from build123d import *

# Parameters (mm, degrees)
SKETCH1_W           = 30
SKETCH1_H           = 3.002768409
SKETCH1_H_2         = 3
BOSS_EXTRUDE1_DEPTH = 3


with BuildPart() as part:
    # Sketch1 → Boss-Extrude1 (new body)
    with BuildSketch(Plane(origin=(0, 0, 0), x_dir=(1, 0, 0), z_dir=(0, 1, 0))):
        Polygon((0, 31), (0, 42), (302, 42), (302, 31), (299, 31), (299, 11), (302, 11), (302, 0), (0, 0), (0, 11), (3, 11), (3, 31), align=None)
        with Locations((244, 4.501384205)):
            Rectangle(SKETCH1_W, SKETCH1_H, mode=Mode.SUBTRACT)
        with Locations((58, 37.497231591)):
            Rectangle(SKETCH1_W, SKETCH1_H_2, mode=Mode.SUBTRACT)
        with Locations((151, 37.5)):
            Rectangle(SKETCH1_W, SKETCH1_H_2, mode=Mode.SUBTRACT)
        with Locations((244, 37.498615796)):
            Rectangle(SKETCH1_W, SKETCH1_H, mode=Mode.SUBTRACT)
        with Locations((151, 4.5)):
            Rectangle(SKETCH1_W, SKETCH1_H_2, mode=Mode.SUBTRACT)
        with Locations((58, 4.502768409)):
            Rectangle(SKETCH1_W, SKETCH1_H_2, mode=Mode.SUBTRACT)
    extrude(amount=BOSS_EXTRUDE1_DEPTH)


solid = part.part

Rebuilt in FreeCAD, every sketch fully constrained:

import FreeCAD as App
import Part
import Sketcher

doc = App.newDocument("Part")
body = doc.addObject("PartDesign::Body", "Body")

# Sketch on XZ plane
sketch1 = body.newObject("Sketcher::SketchObject", "Sketch")
sketch1.AttachmentSupport = (doc.getObject("XZ_Plane"), [""])
sketch1.MapMode = "FlatFace"
sketch1.addGeometry([
    Part.LineSegment(App.Vector(0, -42, 0), App.Vector(0, -31, 0)),  # 0
    Part.LineSegment(App.Vector(0, -31, 0), App.Vector(3, -31, 0)),  # 1
    Part.LineSegment(App.Vector(3, -31, 0), App.Vector(3, -11, 0)),  # 2
    Part.LineSegment(App.Vector(3, -11, 0), App.Vector(0, -11, 0)),  # 3
    Part.LineSegment(App.Vector(0, -11, 0), App.Vector(0, 0, 0)),  # 4
    Part.LineSegment(App.Vector(0, 0, 0), App.Vector(302, 0, 0)),  # 5
    Part.LineSegment(App.Vector(302, 0, 0), App.Vector(302, -11, 0)),  # 6
    Part.LineSegment(App.Vector(302, -11, 0), App.Vector(299, -11, 0)),  # 7
    Part.LineSegment(App.Vector(299, -11, 0), App.Vector(299, -31, 0)),  # 8
    Part.LineSegment(App.Vector(299, -31, 0), App.Vector(302, -31, 0)),  # 9
    Part.LineSegment(App.Vector(302, -31, 0), App.Vector(302, -42, 0)),  # 10
    Part.LineSegment(App.Vector(302, -42, 0), App.Vector(0, -42, 0)),  # 11
    Part.LineSegment(App.Vector(229, -3, 0), App.Vector(229, -6, 0)),  # 12
    Part.LineSegment(App.Vector(229, -6, 0), App.Vector(259, -6, 0)),  # 13
    Part.LineSegment(App.Vector(259, -6, 0), App.Vector(259, -3, 0)),  # 14
    Part.LineSegment(App.Vector(259, -3, 0), App.Vector(229, -3, 0)),  # 15
    Part.LineSegment(App.Vector(136, -3, 0), App.Vector(136, -6, 0)),  # 16
    Part.LineSegment(App.Vector(136, -6, 0), App.Vector(166, -6, 0)),  # 17
    Part.LineSegment(App.Vector(166, -6, 0), App.Vector(166, -3, 0)),  # 18
    Part.LineSegment(App.Vector(166, -3, 0), App.Vector(136, -3, 0)),  # 19
    Part.LineSegment(App.Vector(43, -3, 0), App.Vector(43, -6, 0)),  # 20
    Part.LineSegment(App.Vector(43, -6, 0), App.Vector(73, -6, 0)),  # 21
    Part.LineSegment(App.Vector(73, -6, 0), App.Vector(73, -3, 0)),  # 22
    Part.LineSegment(App.Vector(73, -3, 0), App.Vector(43, -3, 0)),  # 23
    Part.LineSegment(App.Vector(229, -36, 0), App.Vector(229, -39, 0)),  # 24
    Part.LineSegment(App.Vector(229, -39, 0), App.Vector(259, -39, 0)),  # 25
    Part.LineSegment(App.Vector(259, -39, 0), App.Vector(259, -36, 0)),  # 26
    Part.LineSegment(App.Vector(259, -36, 0), App.Vector(229, -36, 0)),  # 27
    Part.LineSegment(App.Vector(136, -36, 0), App.Vector(136, -39, 0)),  # 28
    Part.LineSegment(App.Vector(136, -39, 0), App.Vector(166, -39, 0)),  # 29
    Part.LineSegment(App.Vector(166, -39, 0), App.Vector(166, -36, 0)),  # 30
    Part.LineSegment(App.Vector(166, -36, 0), App.Vector(136, -36, 0)),  # 31
    Part.LineSegment(App.Vector(43, -36, 0), App.Vector(43, -39, 0)),  # 32
    Part.LineSegment(App.Vector(43, -39, 0), App.Vector(73, -39, 0)),  # 33
    Part.LineSegment(App.Vector(73, -39, 0), App.Vector(73, -36, 0)),  # 34
    Part.LineSegment(App.Vector(73, -36, 0), App.Vector(43, -36, 0)),  # 35
], False)
sketch1.addConstraint([
    Sketcher.Constraint("Coincident", 0, 2, 1, 1),
    Sketcher.Constraint("Coincident", 1, 2, 2, 1),
    Sketcher.Constraint("Coincident", 2, 2, 3, 1),
    Sketcher.Constraint("Coincident", 3, 2, 4, 1),
    Sketcher.Constraint("Coincident", 4, 2, 5, 1),
    Sketcher.Constraint("Coincident", 5, 2, 6, 1),
    Sketcher.Constraint("Coincident", 6, 2, 7, 1),
    Sketcher.Constraint("Coincident", 7, 2, 8, 1),
    Sketcher.Constraint("Coincident", 8, 2, 9, 1),
    Sketcher.Constraint("Coincident", 9, 2, 10, 1),
    Sketcher.Constraint("Coincident", 10, 2, 11, 1),
    Sketcher.Constraint("Coincident", 11, 2, 0, 1),
    Sketcher.Constraint("Coincident", 12, 2, 13, 1),
    Sketcher.Constraint("Coincident", 13, 2, 14, 1),
    Sketcher.Constraint("Coincident", 14, 2, 15, 1),
    Sketcher.Constraint("Coincident", 15, 2, 12, 1),
    Sketcher.Constraint("Coincident", 16, 2, 17, 1),
    Sketcher.Constraint("Coincident", 17, 2, 18, 1),
    Sketcher.Constraint("Coincident", 18, 2, 19, 1),
    Sketcher.Constraint("Coincident", 19, 2, 16, 1),
    Sketcher.Constraint("Coincident", 20, 2, 21, 1),
    Sketcher.Constraint("Coincident", 21, 2, 22, 1),
    Sketcher.Constraint("Coincident", 22, 2, 23, 1),
    Sketcher.Constraint("Coincident", 23, 2, 20, 1),
    Sketcher.Constraint("Coincident", 24, 2, 25, 1),
    Sketcher.Constraint("Coincident", 25, 2, 26, 1),
    Sketcher.Constraint("Coincident", 26, 2, 27, 1),
    Sketcher.Constraint("Coincident", 27, 2, 24, 1),
    Sketcher.Constraint("Coincident", 28, 2, 29, 1),
    Sketcher.Constraint("Coincident", 29, 2, 30, 1),
    Sketcher.Constraint("Coincident", 30, 2, 31, 1),
    Sketcher.Constraint("Coincident", 31, 2, 28, 1),
    Sketcher.Constraint("Coincident", 32, 2, 33, 1),
    Sketcher.Constraint("Coincident", 33, 2, 34, 1),
    Sketcher.Constraint("Coincident", 34, 2, 35, 1),
    Sketcher.Constraint("Coincident", 35, 2, 32, 1),
    Sketcher.Constraint("Vertical", 0),
    Sketcher.Constraint("Horizontal", 1),
    Sketcher.Constraint("Vertical", 2),
    Sketcher.Constraint("Horizontal", 3),
    Sketcher.Constraint("Vertical", 4),
    Sketcher.Constraint("Horizontal", 5),
    Sketcher.Constraint("Vertical", 6),
    Sketcher.Constraint("Horizontal", 7),
    Sketcher.Constraint("Vertical", 8),
    Sketcher.Constraint("Horizontal", 9),
    Sketcher.Constraint("Vertical", 10),
    Sketcher.Constraint("Horizontal", 11),
    Sketcher.Constraint("Vertical", 12),
    Sketcher.Constraint("Horizontal", 13),
    Sketcher.Constraint("Vertical", 14),
    Sketcher.Constraint("Horizontal", 15),
    Sketcher.Constraint("Vertical", 16),
    Sketcher.Constraint("Horizontal", 17),
    Sketcher.Constraint("Vertical", 18),
    Sketcher.Constraint("Horizontal", 19),
    Sketcher.Constraint("Vertical", 20),
    Sketcher.Constraint("Horizontal", 21),
    Sketcher.Constraint("Vertical", 22),
    Sketcher.Constraint("Horizontal", 23),
    Sketcher.Constraint("Vertical", 24),
    Sketcher.Constraint("Horizontal", 25),
    Sketcher.Constraint("Vertical", 26),
    Sketcher.Constraint("Horizontal", 27),
    Sketcher.Constraint("Vertical", 28),
    Sketcher.Constraint("Horizontal", 29),
    Sketcher.Constraint("Vertical", 30),
    Sketcher.Constraint("Horizontal", 31),
    Sketcher.Constraint("Vertical", 32),
    Sketcher.Constraint("Horizontal", 33),
    Sketcher.Constraint("Vertical", 34),
    Sketcher.Constraint("Horizontal", 35),
    Sketcher.Constraint("Coincident", 4, 2, -1, 1),
    Sketcher.Constraint("PointOnObject", 0, 2, -2),
    Sketcher.Constraint("Horizontal", 3, 2, 6, 2),
    Sketcher.Constraint("Horizontal", 1, 2, 8, 2),
    Sketcher.Constraint("Horizontal", 15, 2, 18, 2),
    Sketcher.Constraint("Horizontal", 13, 2, 20, 2),
    Sketcher.Constraint("Horizontal", 25, 2, 28, 2),
    Sketcher.Constraint("Horizontal", 27, 2, 34, 2),
    Sketcher.Constraint("Vertical", 6, 2, 9, 2),
    Sketcher.Constraint("Vertical", 15, 2, 24, 2),
    Sketcher.Constraint("Vertical", 14, 2, 25, 2),
    Sketcher.Constraint("Vertical", 19, 2, 28, 2),
    Sketcher.Constraint("Vertical", 18, 2, 29, 2),
    Sketcher.Constraint("Vertical", 23, 2, 32, 2),
    Sketcher.Constraint("Vertical", 22, 2, 33, 2),
    Sketcher.Constraint("Equal", 3, 7),
    Sketcher.Constraint("Equal", 15, 17),
    Sketcher.Constraint("Equal", 19, 21),
    Sketcher.Constraint("Equal", 0, 4),
    Sketcher.Constraint("Equal", 9, 16),
    Sketcher.Constraint("Equal", 18, 20),
    Sketcher.Constraint("Equal", 14, 24),
    Sketcher.Constraint("Equal", 22, 28),
    Sketcher.Constraint("Equal", 30, 32),
    Sketcher.Constraint("DistanceX", 1, 1, 1, 2, 3.0),
    Sketcher.Constraint("DistanceX", 5, 1, 5, 2, 302.0),
    Sketcher.Constraint("DistanceX", 13, 1, 13, 2, 30.0),
    Sketcher.Constraint("DistanceY", 0, 1, 0, 2, 11.0),
    Sketcher.Constraint("DistanceY", 2, 1, 2, 2, 20.0),
    Sketcher.Constraint("DistanceX", -1, 1, 12, 2, 229.0),
    Sketcher.Constraint("DistanceY", 14, 2, -1, 1, 3.0),
    Sketcher.Constraint("DistanceX", -1, 1, 16, 2, 136.0),
    Sketcher.Constraint("DistanceX", -1, 1, 20, 2, 43.0),
    Sketcher.Constraint("DistanceY", 24, 2, -1, 1, 39.0),
    Sketcher.Constraint("DistanceY", 12, 2, 12, 1, 3.002768),
])
pad1 = body.newObject("PartDesign::Pad", "Pad")
pad1.Profile = sketch1
pad1.Length = 3
pad1.Reversed = True

doc.recompute()
